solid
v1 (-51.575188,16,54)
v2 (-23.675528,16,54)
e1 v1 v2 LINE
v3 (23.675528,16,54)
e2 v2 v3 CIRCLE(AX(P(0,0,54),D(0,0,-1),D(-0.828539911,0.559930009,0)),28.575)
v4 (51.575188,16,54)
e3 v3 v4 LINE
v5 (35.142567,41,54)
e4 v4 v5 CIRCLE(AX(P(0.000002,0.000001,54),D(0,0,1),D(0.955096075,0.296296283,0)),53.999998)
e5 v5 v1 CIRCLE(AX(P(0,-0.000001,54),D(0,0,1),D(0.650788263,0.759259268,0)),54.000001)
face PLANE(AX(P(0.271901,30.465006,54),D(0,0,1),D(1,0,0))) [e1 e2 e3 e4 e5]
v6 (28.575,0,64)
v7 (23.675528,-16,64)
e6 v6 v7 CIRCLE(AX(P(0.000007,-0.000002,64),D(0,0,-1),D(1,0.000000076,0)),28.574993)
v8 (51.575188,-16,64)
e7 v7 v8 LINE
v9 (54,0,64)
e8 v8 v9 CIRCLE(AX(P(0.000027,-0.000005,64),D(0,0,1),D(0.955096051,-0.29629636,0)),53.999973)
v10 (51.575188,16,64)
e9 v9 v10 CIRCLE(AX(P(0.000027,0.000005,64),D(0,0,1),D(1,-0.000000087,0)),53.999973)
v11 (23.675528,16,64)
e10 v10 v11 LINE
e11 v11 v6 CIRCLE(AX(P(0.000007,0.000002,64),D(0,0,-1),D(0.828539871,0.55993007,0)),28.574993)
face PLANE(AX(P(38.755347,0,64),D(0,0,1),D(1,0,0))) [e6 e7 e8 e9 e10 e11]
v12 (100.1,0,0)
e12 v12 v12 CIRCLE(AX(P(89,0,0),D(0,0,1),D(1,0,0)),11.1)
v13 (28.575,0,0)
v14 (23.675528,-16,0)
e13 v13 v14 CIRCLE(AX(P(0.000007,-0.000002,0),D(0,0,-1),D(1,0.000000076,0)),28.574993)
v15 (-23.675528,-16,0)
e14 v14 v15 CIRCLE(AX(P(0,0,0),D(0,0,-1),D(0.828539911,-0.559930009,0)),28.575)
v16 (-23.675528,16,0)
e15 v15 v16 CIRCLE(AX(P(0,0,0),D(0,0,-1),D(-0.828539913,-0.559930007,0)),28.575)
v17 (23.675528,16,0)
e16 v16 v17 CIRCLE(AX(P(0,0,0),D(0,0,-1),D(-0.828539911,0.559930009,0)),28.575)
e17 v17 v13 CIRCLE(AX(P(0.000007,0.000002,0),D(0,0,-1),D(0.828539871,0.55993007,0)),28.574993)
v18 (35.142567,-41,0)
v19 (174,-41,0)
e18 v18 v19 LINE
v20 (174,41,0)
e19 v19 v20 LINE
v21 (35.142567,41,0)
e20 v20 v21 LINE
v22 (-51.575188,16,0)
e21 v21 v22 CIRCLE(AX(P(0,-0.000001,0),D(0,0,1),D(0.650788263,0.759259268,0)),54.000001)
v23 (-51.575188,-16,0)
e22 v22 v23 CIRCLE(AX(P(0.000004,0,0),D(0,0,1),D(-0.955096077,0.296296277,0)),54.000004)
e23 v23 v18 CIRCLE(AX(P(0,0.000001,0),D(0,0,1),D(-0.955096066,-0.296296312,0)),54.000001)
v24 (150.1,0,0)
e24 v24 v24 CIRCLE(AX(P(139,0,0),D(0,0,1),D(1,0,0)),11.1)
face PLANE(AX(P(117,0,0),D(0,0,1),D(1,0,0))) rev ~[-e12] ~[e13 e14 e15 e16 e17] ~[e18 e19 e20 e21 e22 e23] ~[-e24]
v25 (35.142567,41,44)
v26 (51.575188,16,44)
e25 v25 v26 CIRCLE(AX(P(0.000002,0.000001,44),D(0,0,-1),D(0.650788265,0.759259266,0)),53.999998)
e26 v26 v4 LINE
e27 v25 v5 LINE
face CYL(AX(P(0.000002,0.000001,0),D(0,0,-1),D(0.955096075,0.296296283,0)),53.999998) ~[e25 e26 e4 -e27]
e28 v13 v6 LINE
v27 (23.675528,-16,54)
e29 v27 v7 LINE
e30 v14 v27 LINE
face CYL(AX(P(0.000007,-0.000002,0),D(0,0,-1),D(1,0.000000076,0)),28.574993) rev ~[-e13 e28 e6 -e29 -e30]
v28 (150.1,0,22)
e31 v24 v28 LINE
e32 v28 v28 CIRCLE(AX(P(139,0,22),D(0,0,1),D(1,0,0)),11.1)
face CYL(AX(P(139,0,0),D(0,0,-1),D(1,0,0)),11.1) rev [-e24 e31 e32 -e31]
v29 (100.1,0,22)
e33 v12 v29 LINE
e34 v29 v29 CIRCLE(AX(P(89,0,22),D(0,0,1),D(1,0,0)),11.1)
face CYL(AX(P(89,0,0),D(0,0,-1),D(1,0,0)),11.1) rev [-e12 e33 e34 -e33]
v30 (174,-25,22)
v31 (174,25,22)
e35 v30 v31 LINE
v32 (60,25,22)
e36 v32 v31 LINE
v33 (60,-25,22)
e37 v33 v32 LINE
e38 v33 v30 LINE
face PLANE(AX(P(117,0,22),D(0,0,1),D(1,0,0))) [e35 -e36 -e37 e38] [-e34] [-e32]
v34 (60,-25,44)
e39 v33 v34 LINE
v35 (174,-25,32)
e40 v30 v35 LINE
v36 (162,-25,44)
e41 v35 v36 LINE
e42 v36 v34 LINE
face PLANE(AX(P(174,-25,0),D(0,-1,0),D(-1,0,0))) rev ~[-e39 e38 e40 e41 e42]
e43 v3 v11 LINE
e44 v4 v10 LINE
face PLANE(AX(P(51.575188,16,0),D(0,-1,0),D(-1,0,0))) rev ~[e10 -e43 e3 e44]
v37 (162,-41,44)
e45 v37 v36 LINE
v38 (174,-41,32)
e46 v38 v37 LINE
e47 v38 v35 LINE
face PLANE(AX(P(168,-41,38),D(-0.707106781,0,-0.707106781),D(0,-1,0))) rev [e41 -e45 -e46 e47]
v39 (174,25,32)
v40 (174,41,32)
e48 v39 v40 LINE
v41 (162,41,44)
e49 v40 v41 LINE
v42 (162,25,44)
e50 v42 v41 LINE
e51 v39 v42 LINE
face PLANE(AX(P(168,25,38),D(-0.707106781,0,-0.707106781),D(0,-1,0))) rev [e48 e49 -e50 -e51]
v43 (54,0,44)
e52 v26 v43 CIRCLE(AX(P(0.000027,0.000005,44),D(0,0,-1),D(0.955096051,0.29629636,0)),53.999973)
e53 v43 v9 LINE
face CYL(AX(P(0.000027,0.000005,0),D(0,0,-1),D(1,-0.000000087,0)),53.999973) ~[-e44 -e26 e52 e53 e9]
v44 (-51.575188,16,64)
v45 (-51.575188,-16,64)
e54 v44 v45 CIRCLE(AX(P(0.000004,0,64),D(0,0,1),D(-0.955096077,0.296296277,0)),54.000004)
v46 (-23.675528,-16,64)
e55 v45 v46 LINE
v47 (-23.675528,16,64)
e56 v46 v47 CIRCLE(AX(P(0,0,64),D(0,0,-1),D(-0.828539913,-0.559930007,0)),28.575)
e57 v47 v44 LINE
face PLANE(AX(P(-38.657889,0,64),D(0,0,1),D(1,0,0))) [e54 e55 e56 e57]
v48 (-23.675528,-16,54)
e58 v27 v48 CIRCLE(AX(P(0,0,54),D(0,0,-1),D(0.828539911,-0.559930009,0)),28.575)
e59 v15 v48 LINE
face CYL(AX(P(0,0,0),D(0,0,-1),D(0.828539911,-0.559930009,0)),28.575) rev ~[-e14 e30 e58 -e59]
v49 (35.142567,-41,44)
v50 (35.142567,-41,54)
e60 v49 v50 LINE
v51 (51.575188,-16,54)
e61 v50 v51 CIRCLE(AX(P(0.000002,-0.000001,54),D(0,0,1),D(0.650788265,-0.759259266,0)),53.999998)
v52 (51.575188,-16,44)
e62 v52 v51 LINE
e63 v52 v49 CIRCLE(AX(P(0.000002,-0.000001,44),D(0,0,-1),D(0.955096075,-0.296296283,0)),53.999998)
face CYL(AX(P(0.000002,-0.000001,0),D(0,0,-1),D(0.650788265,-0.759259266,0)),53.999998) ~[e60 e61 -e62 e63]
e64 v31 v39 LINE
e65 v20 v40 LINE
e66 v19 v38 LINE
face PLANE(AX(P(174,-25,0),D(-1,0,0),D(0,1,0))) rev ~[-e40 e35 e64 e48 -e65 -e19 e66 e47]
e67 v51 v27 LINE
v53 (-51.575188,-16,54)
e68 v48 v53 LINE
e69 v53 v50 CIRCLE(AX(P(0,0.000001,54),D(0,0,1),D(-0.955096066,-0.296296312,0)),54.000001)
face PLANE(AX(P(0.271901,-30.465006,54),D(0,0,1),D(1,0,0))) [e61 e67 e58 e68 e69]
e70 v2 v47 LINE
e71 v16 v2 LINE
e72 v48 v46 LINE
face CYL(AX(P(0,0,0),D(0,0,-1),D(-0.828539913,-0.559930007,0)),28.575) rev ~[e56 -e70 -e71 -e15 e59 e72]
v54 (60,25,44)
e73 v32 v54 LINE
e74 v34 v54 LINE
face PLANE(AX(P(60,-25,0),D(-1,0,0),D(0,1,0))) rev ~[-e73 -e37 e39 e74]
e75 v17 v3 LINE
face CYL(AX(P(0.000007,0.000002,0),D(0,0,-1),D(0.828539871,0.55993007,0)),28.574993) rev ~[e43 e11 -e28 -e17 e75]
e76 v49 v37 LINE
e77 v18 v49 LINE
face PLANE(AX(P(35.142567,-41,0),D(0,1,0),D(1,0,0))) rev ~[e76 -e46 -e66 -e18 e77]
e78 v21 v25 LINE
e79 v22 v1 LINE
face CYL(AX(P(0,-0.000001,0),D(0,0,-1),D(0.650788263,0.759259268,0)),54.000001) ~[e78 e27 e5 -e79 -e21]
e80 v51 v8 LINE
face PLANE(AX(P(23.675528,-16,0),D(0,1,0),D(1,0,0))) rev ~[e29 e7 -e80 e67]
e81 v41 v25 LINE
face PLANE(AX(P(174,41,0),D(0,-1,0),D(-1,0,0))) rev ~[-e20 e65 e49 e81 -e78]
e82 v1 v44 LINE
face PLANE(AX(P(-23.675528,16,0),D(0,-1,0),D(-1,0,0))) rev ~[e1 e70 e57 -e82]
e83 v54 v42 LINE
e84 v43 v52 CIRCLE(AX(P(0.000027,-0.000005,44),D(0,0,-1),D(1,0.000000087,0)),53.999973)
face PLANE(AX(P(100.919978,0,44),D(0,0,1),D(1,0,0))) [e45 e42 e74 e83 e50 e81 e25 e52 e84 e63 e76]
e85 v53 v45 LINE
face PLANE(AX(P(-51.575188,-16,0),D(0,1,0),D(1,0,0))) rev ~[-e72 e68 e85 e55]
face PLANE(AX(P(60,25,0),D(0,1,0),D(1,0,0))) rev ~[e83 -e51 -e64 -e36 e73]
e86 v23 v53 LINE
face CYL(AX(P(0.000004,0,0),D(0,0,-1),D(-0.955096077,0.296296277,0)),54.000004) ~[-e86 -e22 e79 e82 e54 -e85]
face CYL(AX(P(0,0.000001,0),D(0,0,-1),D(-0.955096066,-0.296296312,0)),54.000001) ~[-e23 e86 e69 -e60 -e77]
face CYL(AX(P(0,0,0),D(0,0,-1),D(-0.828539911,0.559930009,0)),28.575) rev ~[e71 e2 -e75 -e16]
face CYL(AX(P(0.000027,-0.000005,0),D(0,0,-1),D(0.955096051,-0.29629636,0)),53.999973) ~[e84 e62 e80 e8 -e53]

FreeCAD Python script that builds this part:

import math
import FreeCAD as App
import Part
import Sketcher


def edges_at(feature, points):
    """Names of the edges that pass closest to the given points."""
    edges = feature.Shape.Edges
    near = lambda p: min(range(len(edges)), key=lambda i: edges[i].distToShape(Part.Vertex(*p))[0])
    return sorted({f"Edge{near(p) + 1}" for p in points})


def add_polygon(sketch, points):
    """Adds a closed chain of lines whose ends are joined by coincident constraints."""
    first, n = sketch.GeometryCount, len(points)
    for a, b in zip(points, points[1:] + points[:1]):
        sketch.addGeometry(Part.LineSegment(App.Vector(*a, 0), App.Vector(*b, 0)), False)
    for i in range(n):
        sketch.addConstraint(Sketcher.Constraint("Coincident", first + i, 2, first + (i + 1) % n, 1))

doc = App.newDocument("Part")
body = doc.addObject("PartDesign::Body", "Body")
body.AllowCompound = True

sketch1 = body.newObject("Sketcher::SketchObject", "Sketch")
sketch1.AttachmentSupport = (doc.getObject("XY_Plane"), [""])
sketch1.MapMode = "FlatFace"
sketch1.addGeometry(Part.LineSegment(App.Vector(24, 16, 0), App.Vector(52, 16, 0)), False)
sketch1.addGeometry(Part.ArcOfCircle(Part.Circle(App.Vector(0, 0, 0), App.Vector(0, 0, 1), 54), math.radians(17), math.radians(49)), False)
sketch1.addGeometry(Part.ArcOfCircle(Part.Circle(App.Vector(0, 0, 0), App.Vector(0, 0, 1), 54), math.radians(49), math.radians(163)), False)
sketch1.addGeometry(Part.LineSegment(App.Vector(-52, 16, 0), App.Vector(-24, 16, 0)), False)
sketch1.addGeometry(Part.ArcOfCircle(Part.Circle(App.Vector(0, 0, 0), App.Vector(0, 0, 1), 29), math.radians(34), math.radians(146)), False)
sketch1.addGeometry(Part.ArcOfCircle(Part.Circle(App.Vector(0, 0, 0), App.Vector(0, 0, 1), 54), math.radians(-49), math.radians(-17)), False)
sketch1.addGeometry(Part.LineSegment(App.Vector(52, -16, 0), App.Vector(24, -16, 0)), False)
sketch1.addGeometry(Part.ArcOfCircle(Part.Circle(App.Vector(0, 0, 0), App.Vector(0, 0, 1), 29), math.radians(-146), math.radians(-34)), False)
sketch1.addGeometry(Part.LineSegment(App.Vector(-24, -16, 0), App.Vector(-52, -16, 0)), False)
sketch1.addGeometry(Part.ArcOfCircle(Part.Circle(App.Vector(0, 0, 0), App.Vector(0, 0, 1), 54), math.radians(-163), math.radians(-49)), False)
sketch1.addConstraint(Sketcher.Constraint("Coincident", 0, 2, 1, 1))
sketch1.addConstraint(Sketcher.Constraint("Tangent", 1, 2, 2, 1))
sketch1.addConstraint(Sketcher.Constraint("Coincident", 2, 2, 3, 1))
sketch1.addConstraint(Sketcher.Constraint("Coincident", 3, 2, 4, 2))
sketch1.addConstraint(Sketcher.Constraint("Coincident", 4, 1, 0, 1))
sketch1.addConstraint(Sketcher.Constraint("Coincident", 5, 2, 6, 1))
sketch1.addConstraint(Sketcher.Constraint("Coincident", 6, 2, 7, 2))
sketch1.addConstraint(Sketcher.Constraint("Coincident", 7, 1, 8, 1))
sketch1.addConstraint(Sketcher.Constraint("Coincident", 8, 2, 9, 1))
sketch1.addConstraint(Sketcher.Constraint("Tangent", 9, 2, 5, 1))
sketch1.addConstraint(Sketcher.Constraint("Horizontal", 0))
sketch1.addConstraint(Sketcher.Constraint("Horizontal", 3))
sketch1.addConstraint(Sketcher.Constraint("Horizontal", 6))
sketch1.addConstraint(Sketcher.Constraint("Horizontal", 8))
sketch1.addConstraint(Sketcher.Constraint("Coincident", 1, 3, -1, 1))
sketch1.addConstraint(Sketcher.Constraint("Coincident", 4, 3, -1, 1))
sketch1.addConstraint(Sketcher.Constraint("Coincident", 5, 3, -1, 1))
sketch1.addConstraint(Sketcher.Constraint("Coincident", 7, 3, -1, 1))
sketch1.addConstraint(Sketcher.Constraint("Equal", 1, 5))
sketch1.addConstraint(Sketcher.Constraint("Equal", 4, 7))
sketch1.addConstraint(Sketcher.Constraint("Equal", 2, 9))
sketch1.addConstraint(Sketcher.Constraint("Symmetric", 2, 2, 5, 2, -1, 1))
sketch1.addConstraint(Sketcher.Constraint("Horizontal", 0, 2, 2, 2))
sketch1.addConstraint(Sketcher.Constraint("Horizontal", 6, 2, 7, 1))
sketch1.addConstraint(Sketcher.Constraint("Vertical", 1, 2, 9, 2))
sketch1.addConstraint(Sketcher.Constraint("Radius", 2, 54.000001))
sketch1.addConstraint(Sketcher.Constraint("DistanceY", -1, 1, 0, 2, 16.0))
sketch1.addConstraint(Sketcher.Constraint("DistanceY", -1, 1, 1, 2, 41.0))
sketch1.addConstraint(Sketcher.Constraint("Radius", 4, 28.575))
pad1 = body.newObject("PartDesign::Pad", "Pad")
pad1.Profile = sketch1
pad1.Length = 54
body2 = doc.addObject("PartDesign::Body", "Body001")
body2.AllowCompound = True

sketch2 = body2.newObject("Sketcher::SketchObject", "Sketch001")
sketch2.AttachmentSupport = (doc.getObject("XY_Plane001"), [""])
sketch2.MapMode = "FlatFace"
sketch2.addGeometry(Part.LineSegment(App.Vector(-23.675528, 16, 0), App.Vector(-51.575188, 16, 0)), False)
sketch2.addGeometry(Part.ArcOfCircle(Part.Circle(App.Vector(0.000004, 0, 0), App.Vector(0, 0, 1), 54.000004), math.radians(162.764716), math.radians(197.235284)), False)
sketch2.addGeometry(Part.LineSegment(App.Vector(-51.575188, -16, 0), App.Vector(-23.675528, -16, 0)), False)
sketch2.addGeometry(Part.ArcOfCircle(Part.Circle(App.Vector(0, 0, 0), App.Vector(0, 0, 1), 28.575), math.radians(145.949043), math.radians(214.050957)), False)
sketch2.addGeometry(Part.ArcOfCircle(Part.Circle(App.Vector(0.000027, -0.000005, 0), App.Vector(0, 0, 1), 53.999973), math.radians(-17.235289), math.radians(0.000005)), False)
sketch2.addGeometry(Part.ArcOfCircle(Part.Circle(App.Vector(0.000027, 0.000005, 0), App.Vector(0, 0, 1), 53.999973), math.radians(-0.000005), math.radians(17.235289)), False)
sketch2.addGeometry(Part.LineSegment(App.Vector(51.575188, 16, 0), App.Vector(23.675528, 16, 0)), False)
sketch2.addGeometry(Part.ArcOfCircle(Part.Circle(App.Vector(0.000007, 0.000002, 0), App.Vector(0, 0, 1), 28.574993), math.radians(-0.000004), math.radians(34.050962)), False)
sketch2.addGeometry(Part.ArcOfCircle(Part.Circle(App.Vector(0.000007, -0.000002, 0), App.Vector(0, 0, 1), 28.574993), math.radians(-34.050962), math.radians(0.000004)), False)
sketch2.addGeometry(Part.LineSegment(App.Vector(23.675528, -16, 0), App.Vector(51.575188, -16, 0)), False)
sketch2.addConstraint(Sketcher.Constraint("Coincident", 0, 2, 1, 1))
sketch2.addConstraint(Sketcher.Constraint("Coincident", 1, 2, 2, 1))
sketch2.addConstraint(Sketcher.Constraint("Coincident", 2, 2, 3, 2))
sketch2.addConstraint(Sketcher.Constraint("Coincident", 3, 1, 0, 1))
sketch2.addConstraint(Sketcher.Constraint("Coincident", 4, 2, 5, 1))
sketch2.addConstraint(Sketcher.Constraint("Coincident", 5, 2, 6, 1))
sketch2.addConstraint(Sketcher.Constraint("Coincident", 6, 2, 7, 2))
sketch2.addConstraint(Sketcher.Constraint("Coincident", 7, 1, 8, 2))
sketch2.addConstraint(Sketcher.Constraint("Coincident", 8, 1, 9, 1))
sketch2.addConstraint(Sketcher.Constraint("Coincident", 9, 2, 4, 1))
sketch2.addConstraint(Sketcher.Constraint("Horizontal", 0))
sketch2.addConstraint(Sketcher.Constraint("Horizontal", 2))
sketch2.addConstraint(Sketcher.Constraint("Horizontal", 6))
sketch2.addConstraint(Sketcher.Constraint("Horizontal", 9))
sketch2.addConstraint(Sketcher.Constraint("Coincident", 1, 3, -1, 1))
sketch2.addConstraint(Sketcher.Constraint("Coincident", 3, 3, -1, 1))
sketch2.addConstraint(Sketcher.Constraint("Coincident", 7, 3, -1, 1))
sketch2.addConstraint(Sketcher.Constraint("Coincident", 8, 3, -1, 1))
sketch2.addConstraint(Sketcher.Constraint("Coincident", 5, 3, 4, 3))
sketch2.addConstraint(Sketcher.Constraint("PointOnObject", 4, 2, -1))
sketch2.addConstraint(Sketcher.Constraint("PointOnObject", 7, 1, -1))
sketch2.addConstraint(Sketcher.Constraint("DistanceY", -1, 1, 0, 2, 16.0))
sketch2.addConstraint(Sketcher.Constraint("DistanceY", 1, 2, -1, 1, 16.0))
sketch2.addConstraint(Sketcher.Constraint("DistanceX", -1, 1, 4, 2, 54.0))
sketch2.addConstraint(Sketcher.Constraint("DistanceY", -1, 1, 5, 2, 16.0))
sketch2.addConstraint(Sketcher.Constraint("DistanceY", 8, 1, -1, 1, 16.0))
sketch2.addConstraint(Sketcher.Constraint("Radius", 3, 28.575))
sketch2.addConstraint(Sketcher.Constraint("DistanceX", -1, 1, 7, 1, 28.575))
sketch2.addConstraint(Sketcher.Constraint("Radius", 1, 54.000004))
sketch2.addConstraint(Sketcher.Constraint("Radius", 4, 53.999973))
sketch2.addConstraint(Sketcher.Constraint("DistanceX", 6, 2, 6, 1, 27.89966))
pad2 = body2.newObject("PartDesign::Pad", "Pad001")
pad2.Profile = sketch2
pad2.Length = 64
doc.recompute()

boolean = body.newObject("PartDesign::Boolean", "Boolean")
boolean.Type = "Fuse"
boolean.addObjects([body2])

sketch3 = body.newObject("Sketcher::SketchObject", "Sketch002")
sketch3.AttachmentSupport = (doc.getObject("XY_Plane"), [""])
sketch3.MapMode = "FlatFace"
sketch3.addGeometry(Part.ArcOfCircle(Part.Circle(App.Vector(0.000027, 0.000005, 0), App.Vector(0, 0, 1), 53.999973), math.radians(-0.000005), math.radians(17.235289)), False)
sketch3.addGeometry(Part.ArcOfCircle(Part.Circle(App.Vector(0.000027, -0.000005, 0), App.Vector(0, 0, 1), 53.999973), math.radians(-17.235289), math.radians(0.000005)), False)
sketch3.addGeometry(Part.ArcOfCircle(Part.Circle(App.Vector(0.000002, -0.000001, 0), App.Vector(0, 0, 1), 53.999998), math.radians(-49.39894), math.radians(-17.235284)), False)
sketch3.addGeometry(Part.LineSegment(App.Vector(35.142567, -41, 0), App.Vector(174, -41, 0)), False)
sketch3.addGeometry(Part.LineSegment(App.Vector(174, -41, 0), App.Vector(174, -25, 0)), False)
sketch3.addGeometry(Part.LineSegment(App.Vector(174, -25, 0), App.Vector(60, -25, 0)), False)
sketch3.addGeometry(Part.LineSegment(App.Vector(60, -25, 0), App.Vector(60, 25, 0)), False)
sketch3.addGeometry(Part.LineSegment(App.Vector(60, 25, 0), App.Vector(174, 25, 0)), False)
sketch3.addGeometry(Part.LineSegment(App.Vector(174, 25, 0), App.Vector(174, 41, 0)), False)
sketch3.addGeometry(Part.LineSegment(App.Vector(174, 41, 0), App.Vector(35.142567, 41, 0)), False)
sketch3.addGeometry(Part.ArcOfCircle(Part.Circle(App.Vector(0.000002, 0.000001, 0), App.Vector(0, 0, 1), 53.999998), math.radians(17.235284), math.radians(49.39894)), False)
sketch3.addConstraint(Sketcher.Constraint("Coincident", 0, 1, 1, 2))
sketch3.addConstraint(Sketcher.Constraint("Coincident", 1, 1, 2, 2))
sketch3.addConstraint(Sketcher.Constraint("Coincident", 2, 1, 3, 1))
sketch3.addConstraint(Sketcher.Constraint("Coincident", 3, 2, 4, 1))
sketch3.addConstraint(Sketcher.Constraint("Coincident", 4, 2, 5, 1))
sketch3.addConstraint(Sketcher.Constraint("Coincident", 5, 2, 6, 1))
sketch3.addConstraint(Sketcher.Constraint("Coincident", 6, 2, 7, 1))
sketch3.addConstraint(Sketcher.Constraint("Coincident", 7, 2, 8, 1))
sketch3.addConstraint(Sketcher.Constraint("Coincident", 8, 2, 9, 1))
sketch3.addConstraint(Sketcher.Constraint("Coincident", 9, 2, 10, 2))
sketch3.addConstraint(Sketcher.Constraint("Coincident", 10, 1, 0, 2))
sketch3.addConstraint(Sketcher.Constraint("Horizontal", 3))
sketch3.addConstraint(Sketcher.Constraint("Vertical", 4))
sketch3.addConstraint(Sketcher.Constraint("Horizontal", 5))
sketch3.addConstraint(Sketcher.Constraint("Vertical", 6))
sketch3.addConstraint(Sketcher.Constraint("Horizontal", 7))
sketch3.addConstraint(Sketcher.Constraint("Vertical", 8))
sketch3.addConstraint(Sketcher.Constraint("Horizontal", 9))
sketch3.addConstraint(Sketcher.Constraint("Coincident", 2, 3, -1, 1))
sketch3.addConstraint(Sketcher.Constraint("Coincident", 10, 3, -1, 1))
sketch3.addConstraint(Sketcher.Constraint("Coincident", 1, 3, 0, 3))
sketch3.addConstraint(Sketcher.Constraint("PointOnObject", 0, 1, -1))
sketch3.addConstraint(Sketcher.Constraint("DistanceX", 5, 2, 5, 1, 114.0))
sketch3.addConstraint(Sketcher.Constraint("DistanceX", 7, 1, 7, 2, 114.0))
sketch3.addConstraint(Sketcher.Constraint("DistanceY", 4, 1, 4, 2, 16.0))
sketch3.addConstraint(Sketcher.Constraint("DistanceY", 6, 1, 6, 2, 50.0))
sketch3.addConstraint(Sketcher.Constraint("DistanceY", 8, 1, 8, 2, 16.0))
sketch3.addConstraint(Sketcher.Constraint("DistanceX", -1, 1, 0, 1, 54.0))
sketch3.addConstraint(Sketcher.Constraint("DistanceY", 1, 1, -1, 1, 16.0))
sketch3.addConstraint(Sketcher.Constraint("DistanceY", 2, 1, -1, 1, 41.0))
sketch3.addConstraint(Sketcher.Constraint("DistanceX", -1, 1, 3, 2, 174.0))
sketch3.addConstraint(Sketcher.Constraint("DistanceY", -1, 1, 10, 1, 16.0))
sketch3.addConstraint(Sketcher.Constraint("Radius", 0, 53.999973))
sketch3.addConstraint(Sketcher.Constraint("Radius", 2, 53.999998))
pad3 = body.newObject("PartDesign::Pad", "Pad002")
pad3.Profile = sketch3
pad3.Length = 44

sketch4 = body.newObject("Sketcher::SketchObject", "Sketch003")
sketch4.AttachmentSupport = (doc.getObject("XY_Plane"), [""])
sketch4.MapMode = "FlatFace"
add_polygon(sketch4, [(60, 25), (60, -25), (174, -25), (174, 25)])
sketch4.addGeometry(Part.Circle(App.Vector(89, 0, 0), App.Vector(0, 0, 1), 11), False)
sketch4.addGeometry(Part.Circle(App.Vector(139, 0, 0), App.Vector(0, 0, 1), 11), False)
sketch4.addConstraint(Sketcher.Constraint("Vertical", 0))
sketch4.addConstraint(Sketcher.Constraint("Horizontal", 1))
sketch4.addConstraint(Sketcher.Constraint("Vertical", 2))
sketch4.addConstraint(Sketcher.Constraint("Horizontal", 3))
sketch4.addConstraint(Sketcher.Constraint("Equal", 4, 5))
sketch4.addConstraint(Sketcher.Constraint("PointOnObject", 4, 3, -1))
sketch4.addConstraint(Sketcher.Constraint("PointOnObject", 5, 3, -1))
sketch4.addConstraint(Sketcher.Constraint("Diameter", 4, 22.2))
sketch4.addConstraint(Sketcher.Constraint("DistanceX", 1, 1, 1, 2, 114.0))
sketch4.addConstraint(Sketcher.Constraint("DistanceY", 0, 2, 0, 1, 50.0))
sketch4.addConstraint(Sketcher.Constraint("DistanceX", -1, 1, 4, 3, 89.0))
sketch4.addConstraint(Sketcher.Constraint("DistanceX", -1, 1, 5, 3, 139.0))
sketch4.addConstraint(Sketcher.Constraint("DistanceX", -1, 1, 0, 2, 60.0))
sketch4.addConstraint(Sketcher.Constraint("DistanceY", 0, 2, -1, 1, 25.0))
pad4 = body.newObject("PartDesign::Pad", "Pad003")
pad4.Profile = sketch4
pad4.Length = 22
doc.recompute()

chamfer = body.newObject("PartDesign::Chamfer", "Chamfer")
chamfer.Base = (pad4, edges_at(pad4, [(174, -33, 44), (174, 33, 44)]))
chamfer.ChamferType = "Two distances"
chamfer.Size = 12
chamfer.Size2 = 12

doc.recompute()
